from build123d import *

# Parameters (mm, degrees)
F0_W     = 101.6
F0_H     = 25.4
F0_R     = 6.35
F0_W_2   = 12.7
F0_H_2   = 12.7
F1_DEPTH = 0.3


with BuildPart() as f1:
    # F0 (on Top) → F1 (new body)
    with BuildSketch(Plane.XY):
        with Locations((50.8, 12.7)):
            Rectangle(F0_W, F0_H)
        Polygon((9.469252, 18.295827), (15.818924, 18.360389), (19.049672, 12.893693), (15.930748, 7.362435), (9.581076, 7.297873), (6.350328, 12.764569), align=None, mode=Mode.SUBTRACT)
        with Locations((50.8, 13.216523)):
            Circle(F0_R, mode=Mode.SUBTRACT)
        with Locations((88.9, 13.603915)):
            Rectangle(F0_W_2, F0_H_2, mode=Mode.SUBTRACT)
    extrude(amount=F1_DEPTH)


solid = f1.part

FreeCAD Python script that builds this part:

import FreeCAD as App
import Part
import Sketcher

V = App.Vector
Q = App.Units.Quantity


def add_polygon(sketch, points):
    """Adds a closed chain of lines whose ends are joined by coincident constraints."""
    first, n = sketch.GeometryCount, len(points)
    for a, b in zip(points, points[1:] + points[:1]):
        sketch.addGeometry(Part.LineSegment(App.Vector(*a, 0), App.Vector(*b, 0)), False)
    for i in range(n):
        sketch.addConstraint(Sketcher.Constraint("Coincident", first + i, 2, first + (i + 1) % n, 1))

doc = App.newDocument("Part")
body = doc.addObject("PartDesign::Body", "Body")

sketch1 = body.newObject("Sketcher::SketchObject", "Sketch")
sketch1.AttachmentSupport = (doc.getObject("XY_Plane"), [""])
sketch1.MapMode = "FlatFace"
add_polygon(sketch1, [(0, 25), (0, 0), (102, 0), (102, 25)])
add_polygon(sketch1, [(6, 13), (9, 18), (16, 18), (19, 13), (16, 7), (10, 7)])
sketch1.addGeometry(Part.Circle(V(51, 13, 0), V(0, 0, 1), 6), False)
add_polygon(sketch1, [(95, 7), (83, 7), (83, 20), (95, 20)])
sketch1.addConstraint([
    Sketcher.Constraint("Vertical", 0),
    Sketcher.Constraint("Horizontal", 1),
    Sketcher.Constraint("Vertical", 2),
    Sketcher.Constraint("Horizontal", 3),
    Sketcher.Constraint("Horizontal", 11),
    Sketcher.Constraint("Vertical", 12),
    Sketcher.Constraint("Horizontal", 13),
    Sketcher.Constraint("Vertical", 14),
    Sketcher.Constraint("Coincident", 0, 2, -1, 1),
    Sketcher.Constraint("Parallel", 4, 7),
    Sketcher.Constraint("Parallel", 5, 8),
    Sketcher.Constraint("Parallel", 6, 9),
    Sketcher.Constraint("Equal", 13, 12),
    Sketcher.Constraint("Equal", 4, 5),
    Sketcher.Constraint("Equal", 5, 6),
    Sketcher.Constraint("Equal", 6, 7),
    Sketcher.Constraint("Diameter", 10, Q("0.5 in")),
    Sketcher.Constraint("DistanceX", 1, 1, 1, 2, Q("4 in")),
    Sketcher.Constraint("DistanceY", 0, 2, 0, 1, Q("1 in")),
    Sketcher.Constraint("DistanceX", 11, 2, 11, 1, Q("0.5 in")),
    Sketcher.Constraint("DistanceX", -1, 1, 10, 3, Q("2 in")),
    Sketcher.Constraint("Distance", 4, Q("0.25 in")),
    Sketcher.Constraint("DistanceX", -1, 1, 11, 2, Q("3.25 in")),
    Sketcher.Constraint("DistanceX", -1, 1, 4, 2, Q("9.469252 mm")),
    Sketcher.Constraint("DistanceY", -1, 1, 5, 2, Q("18.360389 mm")),
    Sketcher.Constraint("DistanceX", -1, 1, 9, 2, Q("6.350328 mm")),
    Sketcher.Constraint("DistanceY", -1, 1, 9, 2, Q("12.764569 mm")),
    Sketcher.Constraint("DistanceX", 5, 2, 6, 2, Q("3.230748 mm")),
    Sketcher.Constraint("DistanceY", 6, 2, 10, 3, Q("0.32283 mm")),
    Sketcher.Constraint("DistanceY", 11, 2, 10, 3, Q("5.962608 mm")),
])
pad1 = body.newObject("PartDesign::Pad", "Pad")
pad1.Profile = sketch1
pad1.Length = 0.3

doc.recompute()
